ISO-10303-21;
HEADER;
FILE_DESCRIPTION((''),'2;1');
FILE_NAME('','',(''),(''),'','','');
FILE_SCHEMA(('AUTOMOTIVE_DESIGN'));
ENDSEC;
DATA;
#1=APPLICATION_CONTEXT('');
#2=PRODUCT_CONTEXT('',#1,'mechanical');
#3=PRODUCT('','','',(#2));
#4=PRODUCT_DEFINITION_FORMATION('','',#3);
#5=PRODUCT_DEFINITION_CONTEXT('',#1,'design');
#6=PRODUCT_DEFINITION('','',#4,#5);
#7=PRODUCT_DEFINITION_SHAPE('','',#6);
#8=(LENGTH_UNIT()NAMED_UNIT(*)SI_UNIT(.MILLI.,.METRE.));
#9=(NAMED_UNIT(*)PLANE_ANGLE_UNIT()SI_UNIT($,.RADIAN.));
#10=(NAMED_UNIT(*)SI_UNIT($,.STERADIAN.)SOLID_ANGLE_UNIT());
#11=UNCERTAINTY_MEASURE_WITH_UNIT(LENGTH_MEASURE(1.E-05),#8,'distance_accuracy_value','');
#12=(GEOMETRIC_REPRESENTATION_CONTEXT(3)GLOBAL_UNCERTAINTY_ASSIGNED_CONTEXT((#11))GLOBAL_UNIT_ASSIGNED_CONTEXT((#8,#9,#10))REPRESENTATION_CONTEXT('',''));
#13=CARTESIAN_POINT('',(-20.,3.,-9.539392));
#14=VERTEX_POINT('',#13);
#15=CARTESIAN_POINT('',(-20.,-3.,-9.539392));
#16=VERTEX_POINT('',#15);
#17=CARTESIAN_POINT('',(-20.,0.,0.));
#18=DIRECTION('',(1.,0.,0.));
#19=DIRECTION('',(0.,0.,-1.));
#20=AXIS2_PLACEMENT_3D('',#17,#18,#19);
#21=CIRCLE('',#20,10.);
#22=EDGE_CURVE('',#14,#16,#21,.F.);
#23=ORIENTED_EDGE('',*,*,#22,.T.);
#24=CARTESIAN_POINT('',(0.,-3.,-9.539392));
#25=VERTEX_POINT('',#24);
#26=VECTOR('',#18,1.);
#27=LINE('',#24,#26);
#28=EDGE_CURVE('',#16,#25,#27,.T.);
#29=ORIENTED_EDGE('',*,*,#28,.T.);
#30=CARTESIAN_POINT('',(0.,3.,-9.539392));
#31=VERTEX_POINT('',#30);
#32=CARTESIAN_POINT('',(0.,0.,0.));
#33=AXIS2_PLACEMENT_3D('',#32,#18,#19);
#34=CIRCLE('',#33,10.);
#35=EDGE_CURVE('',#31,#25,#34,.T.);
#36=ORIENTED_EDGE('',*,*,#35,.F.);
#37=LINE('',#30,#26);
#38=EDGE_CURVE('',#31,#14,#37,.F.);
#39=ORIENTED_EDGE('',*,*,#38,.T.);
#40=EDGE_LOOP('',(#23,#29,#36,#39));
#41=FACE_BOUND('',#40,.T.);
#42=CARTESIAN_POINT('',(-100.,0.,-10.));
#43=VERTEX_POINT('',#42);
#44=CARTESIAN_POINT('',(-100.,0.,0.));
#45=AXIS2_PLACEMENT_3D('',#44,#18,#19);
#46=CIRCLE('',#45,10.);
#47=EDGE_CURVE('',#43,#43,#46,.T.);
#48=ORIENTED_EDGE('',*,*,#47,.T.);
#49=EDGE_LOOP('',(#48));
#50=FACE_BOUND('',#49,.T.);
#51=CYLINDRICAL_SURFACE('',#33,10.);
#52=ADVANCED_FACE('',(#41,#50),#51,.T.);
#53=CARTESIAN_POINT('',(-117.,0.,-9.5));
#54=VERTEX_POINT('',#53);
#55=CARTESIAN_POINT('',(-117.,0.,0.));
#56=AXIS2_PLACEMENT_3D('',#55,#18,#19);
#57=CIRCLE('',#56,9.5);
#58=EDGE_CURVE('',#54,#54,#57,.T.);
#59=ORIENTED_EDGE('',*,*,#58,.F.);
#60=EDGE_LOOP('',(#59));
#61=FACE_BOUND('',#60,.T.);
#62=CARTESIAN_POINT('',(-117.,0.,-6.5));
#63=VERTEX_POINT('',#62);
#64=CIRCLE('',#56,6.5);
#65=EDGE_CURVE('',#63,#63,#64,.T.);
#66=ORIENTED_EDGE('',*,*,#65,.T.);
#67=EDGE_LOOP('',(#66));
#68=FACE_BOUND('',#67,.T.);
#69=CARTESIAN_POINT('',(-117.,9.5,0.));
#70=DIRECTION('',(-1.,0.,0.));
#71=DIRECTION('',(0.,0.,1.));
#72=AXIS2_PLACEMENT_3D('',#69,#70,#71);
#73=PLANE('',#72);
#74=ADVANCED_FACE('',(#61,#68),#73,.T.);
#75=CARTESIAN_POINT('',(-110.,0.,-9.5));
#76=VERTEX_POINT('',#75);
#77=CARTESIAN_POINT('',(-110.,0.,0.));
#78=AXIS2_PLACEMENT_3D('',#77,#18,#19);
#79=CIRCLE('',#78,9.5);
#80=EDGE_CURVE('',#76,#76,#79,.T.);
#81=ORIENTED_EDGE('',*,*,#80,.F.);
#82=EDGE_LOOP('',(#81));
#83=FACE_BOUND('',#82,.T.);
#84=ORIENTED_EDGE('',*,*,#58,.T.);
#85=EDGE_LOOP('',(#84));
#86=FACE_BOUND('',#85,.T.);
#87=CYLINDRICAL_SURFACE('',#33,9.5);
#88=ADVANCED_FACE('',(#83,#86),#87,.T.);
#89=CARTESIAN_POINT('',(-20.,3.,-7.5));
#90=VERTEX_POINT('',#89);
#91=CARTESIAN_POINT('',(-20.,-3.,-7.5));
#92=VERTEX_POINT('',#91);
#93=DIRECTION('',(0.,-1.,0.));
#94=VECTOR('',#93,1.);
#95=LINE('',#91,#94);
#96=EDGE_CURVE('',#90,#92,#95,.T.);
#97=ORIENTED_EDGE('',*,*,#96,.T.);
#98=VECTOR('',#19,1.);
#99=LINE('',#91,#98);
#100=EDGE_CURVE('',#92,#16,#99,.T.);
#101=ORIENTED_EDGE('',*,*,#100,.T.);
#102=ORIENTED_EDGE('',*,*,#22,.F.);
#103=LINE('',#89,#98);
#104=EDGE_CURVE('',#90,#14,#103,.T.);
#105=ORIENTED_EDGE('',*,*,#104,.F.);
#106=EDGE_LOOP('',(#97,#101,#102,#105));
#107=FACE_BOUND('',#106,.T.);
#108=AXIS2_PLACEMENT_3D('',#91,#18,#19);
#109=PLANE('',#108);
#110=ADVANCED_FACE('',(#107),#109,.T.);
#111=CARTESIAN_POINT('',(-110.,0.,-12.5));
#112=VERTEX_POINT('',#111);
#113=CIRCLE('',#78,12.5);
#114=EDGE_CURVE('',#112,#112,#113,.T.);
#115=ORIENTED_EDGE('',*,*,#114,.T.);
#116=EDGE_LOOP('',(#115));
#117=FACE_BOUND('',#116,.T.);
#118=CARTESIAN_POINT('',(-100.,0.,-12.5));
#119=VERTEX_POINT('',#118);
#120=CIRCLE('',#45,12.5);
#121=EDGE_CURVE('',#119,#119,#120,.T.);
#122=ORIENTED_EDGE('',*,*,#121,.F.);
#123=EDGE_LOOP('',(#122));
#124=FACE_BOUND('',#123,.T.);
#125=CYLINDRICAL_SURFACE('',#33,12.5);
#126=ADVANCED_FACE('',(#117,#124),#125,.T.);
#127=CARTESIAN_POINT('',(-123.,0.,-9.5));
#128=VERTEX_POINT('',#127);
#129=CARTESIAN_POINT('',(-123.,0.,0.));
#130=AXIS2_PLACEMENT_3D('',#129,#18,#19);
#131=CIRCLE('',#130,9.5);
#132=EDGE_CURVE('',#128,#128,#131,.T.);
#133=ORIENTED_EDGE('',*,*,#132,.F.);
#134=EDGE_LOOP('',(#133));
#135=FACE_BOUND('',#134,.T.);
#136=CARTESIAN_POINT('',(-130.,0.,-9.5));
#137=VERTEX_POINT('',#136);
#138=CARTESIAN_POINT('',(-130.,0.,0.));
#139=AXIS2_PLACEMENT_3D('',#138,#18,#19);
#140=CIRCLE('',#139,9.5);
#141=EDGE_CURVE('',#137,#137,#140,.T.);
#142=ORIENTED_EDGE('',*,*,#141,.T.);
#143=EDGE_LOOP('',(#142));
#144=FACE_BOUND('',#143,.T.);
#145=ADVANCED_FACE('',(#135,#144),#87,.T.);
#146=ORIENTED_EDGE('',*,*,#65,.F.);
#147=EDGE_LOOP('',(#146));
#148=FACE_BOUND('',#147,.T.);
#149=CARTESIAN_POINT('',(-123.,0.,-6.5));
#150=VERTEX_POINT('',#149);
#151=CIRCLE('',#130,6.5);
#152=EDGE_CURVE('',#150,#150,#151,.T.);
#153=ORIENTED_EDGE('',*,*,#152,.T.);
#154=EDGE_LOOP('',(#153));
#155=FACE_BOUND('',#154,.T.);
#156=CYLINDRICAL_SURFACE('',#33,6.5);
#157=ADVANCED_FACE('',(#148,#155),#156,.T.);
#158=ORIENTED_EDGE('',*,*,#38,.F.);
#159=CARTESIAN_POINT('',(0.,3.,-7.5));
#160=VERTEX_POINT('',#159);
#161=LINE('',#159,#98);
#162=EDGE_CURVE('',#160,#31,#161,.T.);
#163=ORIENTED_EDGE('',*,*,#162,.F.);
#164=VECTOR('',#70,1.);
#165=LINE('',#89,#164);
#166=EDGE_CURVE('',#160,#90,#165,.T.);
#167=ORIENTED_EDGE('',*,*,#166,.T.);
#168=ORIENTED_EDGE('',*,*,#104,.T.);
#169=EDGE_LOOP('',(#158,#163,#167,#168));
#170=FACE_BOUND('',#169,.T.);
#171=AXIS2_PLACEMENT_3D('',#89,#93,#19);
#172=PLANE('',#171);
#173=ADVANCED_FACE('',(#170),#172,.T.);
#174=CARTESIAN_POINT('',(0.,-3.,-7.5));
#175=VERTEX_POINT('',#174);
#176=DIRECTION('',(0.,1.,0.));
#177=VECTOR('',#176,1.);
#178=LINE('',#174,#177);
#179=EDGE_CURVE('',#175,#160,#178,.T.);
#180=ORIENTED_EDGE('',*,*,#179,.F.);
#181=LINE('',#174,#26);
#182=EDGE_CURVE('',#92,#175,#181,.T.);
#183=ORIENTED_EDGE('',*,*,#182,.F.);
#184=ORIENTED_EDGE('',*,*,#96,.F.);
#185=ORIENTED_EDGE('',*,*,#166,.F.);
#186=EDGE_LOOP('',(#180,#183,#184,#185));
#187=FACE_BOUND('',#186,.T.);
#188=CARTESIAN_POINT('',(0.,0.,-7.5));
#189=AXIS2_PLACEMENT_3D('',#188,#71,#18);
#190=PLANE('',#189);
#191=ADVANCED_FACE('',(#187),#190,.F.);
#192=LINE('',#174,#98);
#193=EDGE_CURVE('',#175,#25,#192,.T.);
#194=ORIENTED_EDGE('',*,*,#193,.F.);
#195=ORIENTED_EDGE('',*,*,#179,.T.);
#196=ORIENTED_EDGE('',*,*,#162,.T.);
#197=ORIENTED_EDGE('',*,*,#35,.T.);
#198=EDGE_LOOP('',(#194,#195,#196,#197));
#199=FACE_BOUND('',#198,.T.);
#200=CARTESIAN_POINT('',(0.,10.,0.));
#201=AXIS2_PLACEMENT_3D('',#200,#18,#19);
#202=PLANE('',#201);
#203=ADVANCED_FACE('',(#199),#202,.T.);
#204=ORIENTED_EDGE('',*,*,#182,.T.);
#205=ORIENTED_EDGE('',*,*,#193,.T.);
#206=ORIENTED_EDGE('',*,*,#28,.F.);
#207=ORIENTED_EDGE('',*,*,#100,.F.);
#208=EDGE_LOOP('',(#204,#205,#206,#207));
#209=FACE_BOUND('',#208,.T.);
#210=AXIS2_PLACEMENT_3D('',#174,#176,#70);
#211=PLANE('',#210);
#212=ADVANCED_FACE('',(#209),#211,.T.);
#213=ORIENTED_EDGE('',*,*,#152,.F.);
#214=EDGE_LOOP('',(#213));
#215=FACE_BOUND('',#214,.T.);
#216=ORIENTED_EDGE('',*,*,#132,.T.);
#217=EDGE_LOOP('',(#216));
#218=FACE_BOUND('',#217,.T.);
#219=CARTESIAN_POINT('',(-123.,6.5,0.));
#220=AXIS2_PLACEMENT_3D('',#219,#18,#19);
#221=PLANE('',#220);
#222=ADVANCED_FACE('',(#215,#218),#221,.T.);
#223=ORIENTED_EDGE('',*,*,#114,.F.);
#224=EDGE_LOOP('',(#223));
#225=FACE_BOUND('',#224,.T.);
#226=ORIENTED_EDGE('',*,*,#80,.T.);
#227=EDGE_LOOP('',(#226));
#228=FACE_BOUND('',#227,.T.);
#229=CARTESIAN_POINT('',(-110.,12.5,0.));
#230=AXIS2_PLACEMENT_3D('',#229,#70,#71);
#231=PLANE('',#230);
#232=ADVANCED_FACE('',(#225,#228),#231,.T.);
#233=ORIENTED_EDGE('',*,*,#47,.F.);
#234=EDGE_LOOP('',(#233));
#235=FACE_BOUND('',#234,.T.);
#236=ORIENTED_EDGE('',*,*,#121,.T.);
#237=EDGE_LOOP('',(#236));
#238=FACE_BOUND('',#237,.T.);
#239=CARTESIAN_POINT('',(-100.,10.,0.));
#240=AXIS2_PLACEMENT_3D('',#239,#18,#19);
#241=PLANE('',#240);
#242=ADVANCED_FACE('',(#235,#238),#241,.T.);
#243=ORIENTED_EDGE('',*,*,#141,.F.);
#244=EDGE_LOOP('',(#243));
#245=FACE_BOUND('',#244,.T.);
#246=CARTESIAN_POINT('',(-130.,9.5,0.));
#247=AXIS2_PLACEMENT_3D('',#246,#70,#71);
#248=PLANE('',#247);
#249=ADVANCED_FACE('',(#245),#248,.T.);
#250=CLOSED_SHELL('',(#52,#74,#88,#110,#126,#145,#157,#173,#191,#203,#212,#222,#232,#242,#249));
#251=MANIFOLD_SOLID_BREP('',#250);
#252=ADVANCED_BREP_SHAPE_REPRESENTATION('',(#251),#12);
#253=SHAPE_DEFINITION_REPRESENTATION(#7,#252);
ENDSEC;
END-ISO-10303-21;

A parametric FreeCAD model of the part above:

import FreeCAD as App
import Part
import Sketcher
from FreeCAD import Vector

doc = App.newDocument("Part")
body = doc.addObject("PartDesign::Body", "Body")

# Sketch on XY plane
sketch1 = doc.addObject("Sketcher::SketchObject", "Sketch")
body.addObject(sketch1)
sketch1.AttachmentSupport = (doc.XY_Plane, [""])
sketch1.MapMode = "FlatFace"
sketch1.addGeometry([
    Part.LineSegment(Vector(-100, 10, 0), Vector(-100, 12.5, 0)),  # 0
    Part.LineSegment(Vector(-100, 12.5, 0), Vector(-110, 12.5, 0)),  # 1
    Part.LineSegment(Vector(-110, 12.5, 0), Vector(-110, 9.5, 0)),  # 2
    Part.LineSegment(Vector(-110, 9.5, 0), Vector(-117, 9.5, 0)),  # 3
    Part.LineSegment(Vector(-117, 9.5, 0), Vector(-117, 6.5, 0)),  # 4
    Part.LineSegment(Vector(-117, 6.5, 0), Vector(-123, 6.5, 0)),  # 5
    Part.LineSegment(Vector(-123, 6.5, 0), Vector(-123, 9.5, 0)),  # 6
    Part.LineSegment(Vector(-123, 9.5, 0), Vector(-130, 9.5, 0)),  # 7
    Part.LineSegment(Vector(-130, 9.5, 0), Vector(-130, 0, 0)),  # 8
    Part.LineSegment(Vector(-130, 0, 0), Vector(0, 0, 0)),  # 9
    Part.LineSegment(Vector(0, 0, 0), Vector(0, 10, 0)),  # 10
    Part.LineSegment(Vector(0, 10, 0), Vector(-100, 10, 0)),  # 11
], False)
sketch1.addConstraint([
    Sketcher.Constraint("Coincident", 0, 2, 1, 1),
    Sketcher.Constraint("Coincident", 1, 2, 2, 1),
    Sketcher.Constraint("Coincident", 2, 2, 3, 1),
    Sketcher.Constraint("Coincident", 3, 2, 4, 1),
    Sketcher.Constraint("Coincident", 4, 2, 5, 1),
    Sketcher.Constraint("Coincident", 5, 2, 6, 1),
    Sketcher.Constraint("Coincident", 6, 2, 7, 1),
    Sketcher.Constraint("Coincident", 7, 2, 8, 1),
    Sketcher.Constraint("Coincident", 8, 2, 9, 1),
    Sketcher.Constraint("Coincident", 9, 2, 10, 1),
    Sketcher.Constraint("Coincident", 10, 2, 11, 1),
    Sketcher.Constraint("Coincident", 11, 2, 0, 1),
    Sketcher.Constraint("Vertical", 0),
    Sketcher.Constraint("Horizontal", 1),
    Sketcher.Constraint("Vertical", 2),
    Sketcher.Constraint("Horizontal", 3),
    Sketcher.Constraint("Vertical", 4),
    Sketcher.Constraint("Horizontal", 5),
    Sketcher.Constraint("Vertical", 6),
    Sketcher.Constraint("Horizontal", 7),
    Sketcher.Constraint("Vertical", 8),
    Sketcher.Constraint("Horizontal", 9),
    Sketcher.Constraint("Vertical", 10),
    Sketcher.Constraint("Horizontal", 11),
    Sketcher.Constraint("Coincident", 9, 2, -1, 1),
    Sketcher.Constraint("Horizontal", 3, 2, 6, 2),
    Sketcher.Constraint("Equal", 3, 7),
    Sketcher.Constraint("Equal", 2, 4),
    Sketcher.Constraint("Equal", 1, 10),
    Sketcher.Constraint("DistanceX", 1, 2, 1, 1, 10.0),
    Sketcher.Constraint("DistanceX", 3, 2, 3, 1, 7.0),
    Sketcher.Constraint("DistanceX", 5, 2, 5, 1, 6.0),
    Sketcher.Constraint("DistanceX", 9, 1, 9, 2, 130.0),
    Sketcher.Constraint("DistanceY", 2, 2, 2, 1, 3.0),
    Sketcher.Constraint("DistanceY", 0, 1, 0, 2, 2.5),
])
revolution = doc.addObject("PartDesign::Revolution", "Revolution")
body.addObject(revolution)
revolution.Profile = sketch1
revolution.ReferenceAxis = (sketch1, ["H_Axis"])
revolution.Angle = 360

# Sketch on XY plane
sketch2 = doc.addObject("Sketcher::SketchObject", "Sketch001")
body.addObject(sketch2)
sketch2.AttachmentSupport = (doc.XY_Plane, [""])
sketch2.MapMode = "FlatFace"
sketch2.AttachmentOffset = App.Placement(Vector(0, 0, -10), App.Rotation())
sketch2.addGeometry([
    Part.LineSegment(Vector(-20, 3, 0), Vector(-20, -3, 0)),
    Part.LineSegment(Vector(-20, -3, 0), Vector(0, -3, 0)),
    Part.LineSegment(Vector(0, -3, 0), Vector(0, 3, 0)),
    Part.LineSegment(Vector(0, 3, 0), Vector(-20, 3, 0)),
], False)
sketch2.addConstraint([
    Sketcher.Constraint("Coincident", 0, 2, 1, 1),
    Sketcher.Constraint("Coincident", 1, 2, 2, 1),
    Sketcher.Constraint("Coincident", 2, 2, 3, 1),
    Sketcher.Constraint("Coincident", 3, 2, 0, 1),
    Sketcher.Constraint("Vertical", 0),
    Sketcher.Constraint("Horizontal", 1),
    Sketcher.Constraint("Vertical", 2),
    Sketcher.Constraint("Horizontal", 3),
    Sketcher.Constraint("Symmetric", 1, 2, 2, 2, -1, 1),
    Sketcher.Constraint("DistanceX", 1, 1, 1, 2, 20.0),
    Sketcher.Constraint("DistanceY", 0, 2, 0, 1, 6.0),
])
pocket1 = doc.addObject("PartDesign::Pocket", "Pocket")
body.addObject(pocket1)
pocket1.Profile = sketch2
pocket1.Length = 2.5
pocket1.Reversed = True

doc.recompute()
